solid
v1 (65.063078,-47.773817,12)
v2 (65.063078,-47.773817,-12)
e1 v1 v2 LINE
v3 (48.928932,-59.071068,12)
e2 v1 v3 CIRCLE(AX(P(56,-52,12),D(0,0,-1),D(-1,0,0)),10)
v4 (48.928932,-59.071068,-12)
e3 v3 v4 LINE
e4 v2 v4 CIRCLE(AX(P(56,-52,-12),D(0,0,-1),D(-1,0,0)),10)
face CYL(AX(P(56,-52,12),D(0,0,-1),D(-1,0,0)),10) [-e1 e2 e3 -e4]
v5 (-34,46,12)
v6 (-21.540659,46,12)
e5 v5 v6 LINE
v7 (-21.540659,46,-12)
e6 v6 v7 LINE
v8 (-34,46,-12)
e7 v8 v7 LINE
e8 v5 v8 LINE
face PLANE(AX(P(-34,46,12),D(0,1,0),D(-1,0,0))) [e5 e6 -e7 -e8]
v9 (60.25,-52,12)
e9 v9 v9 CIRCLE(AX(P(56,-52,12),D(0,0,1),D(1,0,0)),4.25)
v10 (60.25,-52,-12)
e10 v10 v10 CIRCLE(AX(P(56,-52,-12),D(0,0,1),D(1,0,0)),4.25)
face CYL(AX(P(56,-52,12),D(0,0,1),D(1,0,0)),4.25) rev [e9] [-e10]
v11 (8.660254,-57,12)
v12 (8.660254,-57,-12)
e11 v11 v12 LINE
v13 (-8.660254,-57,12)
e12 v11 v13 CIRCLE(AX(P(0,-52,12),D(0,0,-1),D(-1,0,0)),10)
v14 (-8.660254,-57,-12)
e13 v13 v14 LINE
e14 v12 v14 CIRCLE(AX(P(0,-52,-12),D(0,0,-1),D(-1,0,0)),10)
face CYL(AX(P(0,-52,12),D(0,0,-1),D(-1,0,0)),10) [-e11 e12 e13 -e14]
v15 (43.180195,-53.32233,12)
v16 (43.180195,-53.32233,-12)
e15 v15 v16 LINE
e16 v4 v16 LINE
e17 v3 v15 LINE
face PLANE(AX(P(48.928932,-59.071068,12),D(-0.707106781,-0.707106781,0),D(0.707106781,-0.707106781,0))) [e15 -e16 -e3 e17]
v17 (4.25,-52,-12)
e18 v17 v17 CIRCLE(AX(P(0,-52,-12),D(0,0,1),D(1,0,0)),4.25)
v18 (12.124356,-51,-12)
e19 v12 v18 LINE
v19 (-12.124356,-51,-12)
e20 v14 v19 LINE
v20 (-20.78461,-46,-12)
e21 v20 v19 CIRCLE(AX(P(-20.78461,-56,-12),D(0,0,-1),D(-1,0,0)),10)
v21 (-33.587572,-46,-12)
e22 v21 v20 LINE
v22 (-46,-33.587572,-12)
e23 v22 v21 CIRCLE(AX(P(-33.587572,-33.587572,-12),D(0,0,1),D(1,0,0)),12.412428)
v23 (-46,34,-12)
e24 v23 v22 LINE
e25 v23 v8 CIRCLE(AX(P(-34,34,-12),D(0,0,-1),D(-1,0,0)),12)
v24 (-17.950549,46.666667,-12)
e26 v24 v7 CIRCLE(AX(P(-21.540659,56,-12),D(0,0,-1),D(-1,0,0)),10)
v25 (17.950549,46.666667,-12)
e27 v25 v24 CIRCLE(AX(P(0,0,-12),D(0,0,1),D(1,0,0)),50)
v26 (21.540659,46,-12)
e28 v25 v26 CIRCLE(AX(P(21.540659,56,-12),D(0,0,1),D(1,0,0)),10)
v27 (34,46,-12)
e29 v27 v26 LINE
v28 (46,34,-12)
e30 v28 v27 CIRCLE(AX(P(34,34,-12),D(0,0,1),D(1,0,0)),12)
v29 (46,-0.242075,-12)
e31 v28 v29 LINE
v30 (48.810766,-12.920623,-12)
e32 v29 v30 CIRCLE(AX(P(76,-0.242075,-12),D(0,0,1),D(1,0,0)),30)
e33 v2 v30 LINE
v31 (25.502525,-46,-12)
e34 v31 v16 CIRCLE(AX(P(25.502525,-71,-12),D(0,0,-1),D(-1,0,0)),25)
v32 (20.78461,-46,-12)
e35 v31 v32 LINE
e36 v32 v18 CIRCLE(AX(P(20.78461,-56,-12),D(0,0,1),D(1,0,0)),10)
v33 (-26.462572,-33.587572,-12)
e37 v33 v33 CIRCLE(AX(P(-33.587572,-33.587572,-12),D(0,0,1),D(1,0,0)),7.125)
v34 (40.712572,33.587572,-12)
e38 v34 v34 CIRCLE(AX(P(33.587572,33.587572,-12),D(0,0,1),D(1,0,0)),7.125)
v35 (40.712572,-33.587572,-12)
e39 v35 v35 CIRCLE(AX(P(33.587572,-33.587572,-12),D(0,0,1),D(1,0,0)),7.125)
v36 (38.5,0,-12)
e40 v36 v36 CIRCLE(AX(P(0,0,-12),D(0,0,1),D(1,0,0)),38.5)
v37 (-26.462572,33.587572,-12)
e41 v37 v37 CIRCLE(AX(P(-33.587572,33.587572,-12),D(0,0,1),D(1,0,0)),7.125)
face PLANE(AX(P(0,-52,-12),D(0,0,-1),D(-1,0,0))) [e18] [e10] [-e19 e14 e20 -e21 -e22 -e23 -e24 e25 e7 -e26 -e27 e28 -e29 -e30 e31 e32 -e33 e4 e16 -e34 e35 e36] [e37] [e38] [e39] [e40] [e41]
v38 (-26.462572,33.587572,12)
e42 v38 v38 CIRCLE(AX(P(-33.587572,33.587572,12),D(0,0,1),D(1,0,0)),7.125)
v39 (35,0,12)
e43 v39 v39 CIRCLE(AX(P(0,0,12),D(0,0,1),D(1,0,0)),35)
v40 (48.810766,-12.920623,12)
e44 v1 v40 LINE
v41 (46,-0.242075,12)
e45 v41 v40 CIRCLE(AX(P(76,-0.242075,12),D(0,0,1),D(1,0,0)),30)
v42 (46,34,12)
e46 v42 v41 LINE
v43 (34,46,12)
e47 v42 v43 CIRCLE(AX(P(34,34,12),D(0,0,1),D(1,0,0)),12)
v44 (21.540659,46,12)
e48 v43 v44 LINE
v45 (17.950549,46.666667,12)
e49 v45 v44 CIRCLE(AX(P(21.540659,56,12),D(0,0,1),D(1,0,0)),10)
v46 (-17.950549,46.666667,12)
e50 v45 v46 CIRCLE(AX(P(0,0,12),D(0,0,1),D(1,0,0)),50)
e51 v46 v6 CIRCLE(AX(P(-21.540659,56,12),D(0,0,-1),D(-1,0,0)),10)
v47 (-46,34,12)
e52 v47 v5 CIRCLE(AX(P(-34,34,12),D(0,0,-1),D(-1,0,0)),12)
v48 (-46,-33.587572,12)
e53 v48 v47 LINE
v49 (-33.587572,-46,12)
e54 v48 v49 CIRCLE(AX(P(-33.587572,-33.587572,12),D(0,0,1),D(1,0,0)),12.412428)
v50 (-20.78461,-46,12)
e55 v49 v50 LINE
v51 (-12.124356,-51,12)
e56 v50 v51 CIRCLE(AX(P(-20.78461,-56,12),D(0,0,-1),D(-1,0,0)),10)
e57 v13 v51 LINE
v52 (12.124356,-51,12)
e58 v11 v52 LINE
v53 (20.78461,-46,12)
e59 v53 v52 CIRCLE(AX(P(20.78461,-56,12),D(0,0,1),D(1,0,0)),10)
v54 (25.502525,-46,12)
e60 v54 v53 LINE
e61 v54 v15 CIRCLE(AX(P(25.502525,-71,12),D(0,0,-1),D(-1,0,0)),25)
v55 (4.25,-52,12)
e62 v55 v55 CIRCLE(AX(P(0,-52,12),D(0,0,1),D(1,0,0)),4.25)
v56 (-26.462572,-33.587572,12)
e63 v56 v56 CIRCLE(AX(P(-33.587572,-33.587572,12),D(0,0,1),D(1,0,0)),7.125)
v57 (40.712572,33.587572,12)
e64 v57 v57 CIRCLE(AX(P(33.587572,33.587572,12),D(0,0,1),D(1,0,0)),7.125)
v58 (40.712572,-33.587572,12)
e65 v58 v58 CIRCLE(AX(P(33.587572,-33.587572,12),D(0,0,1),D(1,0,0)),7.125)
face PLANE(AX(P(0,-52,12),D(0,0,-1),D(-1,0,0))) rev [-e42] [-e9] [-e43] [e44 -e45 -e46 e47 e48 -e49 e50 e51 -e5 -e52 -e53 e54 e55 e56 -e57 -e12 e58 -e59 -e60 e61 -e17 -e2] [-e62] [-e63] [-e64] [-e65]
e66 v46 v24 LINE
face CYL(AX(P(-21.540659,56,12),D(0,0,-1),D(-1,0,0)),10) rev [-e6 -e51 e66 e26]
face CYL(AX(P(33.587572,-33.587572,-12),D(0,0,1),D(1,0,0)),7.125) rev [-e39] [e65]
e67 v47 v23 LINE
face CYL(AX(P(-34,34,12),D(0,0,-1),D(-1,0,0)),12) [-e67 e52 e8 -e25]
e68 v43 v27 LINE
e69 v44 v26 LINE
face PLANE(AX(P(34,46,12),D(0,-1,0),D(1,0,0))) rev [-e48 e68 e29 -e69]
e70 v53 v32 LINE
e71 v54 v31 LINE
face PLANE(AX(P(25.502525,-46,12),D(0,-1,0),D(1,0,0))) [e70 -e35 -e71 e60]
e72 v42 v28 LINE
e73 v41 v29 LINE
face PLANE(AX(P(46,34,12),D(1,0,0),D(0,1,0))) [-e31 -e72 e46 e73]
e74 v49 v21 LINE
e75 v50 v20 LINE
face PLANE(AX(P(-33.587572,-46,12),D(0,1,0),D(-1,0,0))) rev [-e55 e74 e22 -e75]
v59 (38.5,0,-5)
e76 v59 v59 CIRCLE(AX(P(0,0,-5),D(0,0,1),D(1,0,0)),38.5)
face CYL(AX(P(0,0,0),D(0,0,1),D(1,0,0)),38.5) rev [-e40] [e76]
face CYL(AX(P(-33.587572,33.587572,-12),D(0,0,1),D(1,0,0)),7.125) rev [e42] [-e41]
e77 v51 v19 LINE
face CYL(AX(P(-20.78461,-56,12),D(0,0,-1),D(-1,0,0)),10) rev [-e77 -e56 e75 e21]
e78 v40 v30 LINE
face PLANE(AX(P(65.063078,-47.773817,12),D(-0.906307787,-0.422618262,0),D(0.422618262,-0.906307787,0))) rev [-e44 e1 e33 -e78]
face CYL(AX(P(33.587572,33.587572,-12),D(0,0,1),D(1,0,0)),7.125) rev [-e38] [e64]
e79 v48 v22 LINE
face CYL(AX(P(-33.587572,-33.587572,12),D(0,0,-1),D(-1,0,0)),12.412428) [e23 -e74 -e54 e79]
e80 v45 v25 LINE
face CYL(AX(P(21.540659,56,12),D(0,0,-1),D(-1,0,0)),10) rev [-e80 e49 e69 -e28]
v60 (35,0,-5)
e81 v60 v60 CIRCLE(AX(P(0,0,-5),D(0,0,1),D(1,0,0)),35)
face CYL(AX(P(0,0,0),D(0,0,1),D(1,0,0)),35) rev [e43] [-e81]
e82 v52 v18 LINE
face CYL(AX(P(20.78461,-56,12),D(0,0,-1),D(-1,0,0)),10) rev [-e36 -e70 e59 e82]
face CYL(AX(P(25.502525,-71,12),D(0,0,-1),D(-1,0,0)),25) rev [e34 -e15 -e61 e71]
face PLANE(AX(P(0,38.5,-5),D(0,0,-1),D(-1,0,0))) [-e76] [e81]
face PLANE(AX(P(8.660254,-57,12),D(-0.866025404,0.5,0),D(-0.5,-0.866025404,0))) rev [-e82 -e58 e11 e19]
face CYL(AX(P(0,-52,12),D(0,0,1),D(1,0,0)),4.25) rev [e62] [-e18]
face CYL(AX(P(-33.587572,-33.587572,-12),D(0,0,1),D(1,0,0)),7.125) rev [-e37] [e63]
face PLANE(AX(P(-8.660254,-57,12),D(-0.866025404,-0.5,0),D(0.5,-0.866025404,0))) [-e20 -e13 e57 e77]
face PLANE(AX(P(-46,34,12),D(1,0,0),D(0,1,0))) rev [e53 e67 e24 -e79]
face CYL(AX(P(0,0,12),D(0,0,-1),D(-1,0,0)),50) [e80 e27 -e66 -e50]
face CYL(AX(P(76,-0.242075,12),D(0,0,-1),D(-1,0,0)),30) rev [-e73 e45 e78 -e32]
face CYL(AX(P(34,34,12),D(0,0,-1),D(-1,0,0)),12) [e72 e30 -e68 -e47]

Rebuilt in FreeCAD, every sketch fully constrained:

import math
import FreeCAD as App
import Part
import Sketcher

V = App.Vector
Q = App.Units.Quantity


def add_polygon(sketch, points):
    """Adds a closed chain of lines whose ends are joined by coincident constraints."""
    first, n = sketch.GeometryCount, len(points)
    for a, b in zip(points, points[1:] + points[:1]):
        sketch.addGeometry(Part.LineSegment(App.Vector(*a, 0), App.Vector(*b, 0)), False)
    for i in range(n):
        sketch.addConstraint(Sketcher.Constraint("Coincident", first + i, 2, first + (i + 1) % n, 1))

doc = App.newDocument("Part")
params = doc.addObject("Spreadsheet::Sheet", "Params")
for row, (alias, value) in enumerate([
    ("sketch1_diameter", "62 mm"),
    ("sketch1_radius", "10 mm"),
    ("sketch1_radius2", "50 mm"),
    ("sketch1_radius3", "12 mm"),
    ("sketch1_radius4", "25 mm"),
    ("pad1_length", "24 mm"),
    ("sketch2_width", "35 mm"),
    ("sketch2_height", "7 mm"),
    ("sketch2_height2", "17 mm"),
    ("sketch2_width2", "3.5 mm"),
    ("groove_angle", "360 deg"),
    ("sketch3_diameter", "8.5 mm"),
    ("hole_diameter", "8.5 mm"),
    ("hole_depth", "24 mm"),
    ("sketch4_diameter", "14.25 mm"),
], start=1):
    params.set(f"A{row}", alias)
    params.set(f"B{row}", "=" + value)
    params.setAlias(f"B{row}", alias)

body = doc.addObject("PartDesign::Body", "Body")

sketch1 = doc.addObject("Sketcher::SketchObject", "Sketch")
body.addObject(sketch1)
sketch1.AttachmentSupport = (doc.XY_Plane, [""])
sketch1.MapMode = "FlatFace"
sketch1.addGeometry([
    Part.LineSegment(V(34, 46, 0), V(21.5, 46, 0)),
    Part.ArcOfCircle(Part.Circle(V(21.5, 56, 0), V(0, 0, 1), 10), math.radians(-111), math.radians(-90)),
    Part.ArcOfCircle(Part.Circle(V(0, 0, 0), V(0, 0, 1), 50), math.radians(69), math.radians(111)),
    Part.ArcOfCircle(Part.Circle(V(-21.5, 56, 0), V(0, 0, 1), 10), math.radians(-90), math.radians(-69)),
    Part.LineSegment(V(-21.5, 46, 0), V(-34, 46, 0)),
    Part.ArcOfCircle(Part.Circle(V(-34, 34, 0), V(0, 0, 1), 12), math.radians(90), math.radians(180)),
    Part.LineSegment(V(-46, 34, 0), V(-46, -33.6, 0)),
    Part.ArcOfCircle(Part.Circle(V(-33.6, -33.6, 0), V(0, 0, 1), 12.4), math.radians(180), math.radians(270)),
    Part.LineSegment(V(-33.6, -46, 0), V(-20.8, -46, 0)),
    Part.ArcOfCircle(Part.Circle(V(-20.8, -56, 0), V(0, 0, 1), 10), math.radians(30), math.radians(90)),
    Part.LineSegment(V(-12.1, -51, 0), V(-8.7, -57, 0)),
    Part.ArcOfCircle(Part.Circle(V(0, -52, 0), V(0, 0, 1), 10), math.radians(-150), math.radians(-30)),
    Part.LineSegment(V(8.7, -57, 0), V(12.1, -51, 0)),
    Part.ArcOfCircle(Part.Circle(V(20.8, -56, 0), V(0, 0, 1), 10), math.radians(90), math.radians(150)),
    Part.LineSegment(V(20.8, -46, 0), V(25.5, -46, 0)),
    Part.ArcOfCircle(Part.Circle(V(25.5, -71, 0), V(0, 0, 1), 25), math.radians(45), math.radians(90)),
    Part.LineSegment(V(43.2, -53.3, 0), V(48.9, -59.1, 0)),
    Part.ArcOfCircle(Part.Circle(V(56, -52, 0), V(0, 0, 1), 10), math.radians(-135), math.radians(25)),
    Part.LineSegment(V(65.1, -47.8, 0), V(48.8, -12.9, 0)),
    Part.ArcOfCircle(Part.Circle(V(76, -0.2, 0), V(0, 0, 1), 30), math.radians(180), math.radians(205)),
    Part.LineSegment(V(46, -0.2, 0), V(46, 34, 0)),
    Part.ArcOfCircle(Part.Circle(V(34, 34, 0), V(0, 0, 1), 12), math.radians(0), math.radians(90)),
    Part.Circle(V(0, 0, 0), V(0, 0, 1), 31),
], False)
sketch1.addConstraint([
    Sketcher.Constraint("Tangent", 0, 2, 1, 2),
    Sketcher.Constraint("Tangent", 1, 1, 2, 1),
    Sketcher.Constraint("Tangent", 2, 2, 3, 2),
    Sketcher.Constraint("Tangent", 3, 1, 4, 1),
    Sketcher.Constraint("Tangent", 4, 2, 5, 1),
    Sketcher.Constraint("Tangent", 5, 2, 6, 1),
    Sketcher.Constraint("Tangent", 6, 2, 7, 1),
    Sketcher.Constraint("Tangent", 7, 2, 8, 1),
    Sketcher.Constraint("Tangent", 8, 2, 9, 2),
    Sketcher.Constraint("Tangent", 9, 1, 10, 1),
    Sketcher.Constraint("Tangent", 10, 2, 11, 1),
    Sketcher.Constraint("Tangent", 11, 2, 12, 1),
    Sketcher.Constraint("Tangent", 12, 2, 13, 2),
    Sketcher.Constraint("Tangent", 13, 1, 14, 1),
    Sketcher.Constraint("Tangent", 14, 2, 15, 2),
    Sketcher.Constraint("Tangent", 15, 1, 16, 1),
    Sketcher.Constraint("Tangent", 16, 2, 17, 1),
    Sketcher.Constraint("Tangent", 17, 2, 18, 1),
    Sketcher.Constraint("Tangent", 18, 2, 19, 2),
    Sketcher.Constraint("Tangent", 19, 1, 20, 1),
    Sketcher.Constraint("Tangent", 20, 2, 21, 1),
    Sketcher.Constraint("Tangent", 21, 2, 0, 1),
    Sketcher.Constraint("Horizontal", 0),
    Sketcher.Constraint("Horizontal", 4),
    Sketcher.Constraint("Vertical", 6),
    Sketcher.Constraint("Horizontal", 8),
    Sketcher.Constraint("Horizontal", 14),
    Sketcher.Constraint("Vertical", 20),
    Sketcher.Constraint("Coincident", 2, 3, -1, 1),
    Sketcher.Constraint("Coincident", 22, 3, -1, 1),
    Sketcher.Constraint("Equal", 1, 3),
    Sketcher.Constraint("Equal", 3, 9),
    Sketcher.Constraint("Equal", 9, 11),
    Sketcher.Constraint("Equal", 11, 13),
    Sketcher.Constraint("Equal", 13, 17),
    Sketcher.Constraint("Equal", 5, 21),
    Sketcher.Constraint("Symmetric", 9, 3, 13, 3, -2),
    Sketcher.Constraint("Symmetric", 5, 3, 21, 3, -2),
    Sketcher.Constraint("PointOnObject", 11, 3, -2),
    Sketcher.Constraint("Horizontal", 11, 3, 17, 3),
    Sketcher.Constraint("Diameter", 22, Q("62 mm")),
    Sketcher.Constraint("Radius", 1, Q("10 mm")),
    Sketcher.Constraint("Radius", 2, Q("50 mm")),
    Sketcher.Constraint("Radius", 5, Q("12 mm")),
    Sketcher.Constraint("Radius", 15, Q("25 mm")),
    Sketcher.Constraint("Radius", 19, Q("30 mm")),
    Sketcher.Constraint("Angle", 10, Q("-60 deg")),
    Sketcher.Constraint("Angle", 16, Q("-45 deg")),
    Sketcher.Constraint("Angle", 18, Q("115 deg")),
    Sketcher.Constraint("DistanceY", -1, 1, 1, 3, Q("56 mm")),
    Sketcher.Constraint("DistanceX", 5, 3, -1, 1, Q("34 mm")),
    Sketcher.Constraint("DistanceY", 9, 3, -1, 1, Q("56 mm")),
    Sketcher.Constraint("DistanceY", 11, 3, -1, 1, Q("52 mm")),
    Sketcher.Constraint("DistanceX", -1, 1, 17, 3, Q("56 mm")),
    Sketcher.Constraint("Radius", 7, Q("12.412428 mm")),
])
sketch1.setExpression("Constraints[40]", "Params.sketch1_diameter")
sketch1.setExpression("Constraints[41]", "Params.sketch1_radius")
sketch1.setExpression("Constraints[42]", "Params.sketch1_radius2")
sketch1.setExpression("Constraints[43]", "Params.sketch1_radius3")
sketch1.setExpression("Constraints[44]", "Params.sketch1_radius4")
pad1 = doc.addObject("PartDesign::Pad", "Pad")
body.addObject(pad1)
pad1.Profile = sketch1
pad1.setExpression("Length", "Params.pad1_length")
pad1.Midplane = True

sketch2 = doc.addObject("Sketcher::SketchObject", "Sketch001")
body.addObject(sketch2)
sketch2.AttachmentSupport = (doc.YZ_Plane, [""])
sketch2.MapMode = "FlatFace"
add_polygon(sketch2, [(38.5, -12), (38.5, -5), (35, -5), (35, 12), (0, 12), (0, -12)])
sketch2.addConstraint([
    Sketcher.Constraint("Vertical", 0),
    Sketcher.Constraint("Horizontal", 1),
    Sketcher.Constraint("Vertical", 2),
    Sketcher.Constraint("Horizontal", 3),
    Sketcher.Constraint("Vertical", 4),
    Sketcher.Constraint("Horizontal", 5),
    Sketcher.Constraint("Symmetric", 3, 2, 4, 2, -1, 1),
    Sketcher.Constraint("DistanceX", 3, 2, 3, 1, Q("35 mm")),
    Sketcher.Constraint("DistanceY", 0, 1, 0, 2, Q("7 mm")),
    Sketcher.Constraint("DistanceY", 2, 1, 2, 2, Q("17 mm")),
    Sketcher.Constraint("DistanceX", 1, 2, 1, 1, Q("3.5 mm")),
])
sketch2.setExpression("Constraints[13]", "Params.sketch2_width")
sketch2.setExpression("Constraints[14]", "Params.sketch2_height")
sketch2.setExpression("Constraints[15]", "Params.sketch2_height2")
sketch2.setExpression("Constraints[16]", "Params.sketch2_width2")
groove = doc.addObject("PartDesign::Groove", "Groove")
body.addObject(groove)
groove.Profile = sketch2
groove.ReferenceAxis = (sketch2, ["V_Axis"])
groove.setExpression("Angle", "Params.groove_angle")

sketch3 = doc.addObject("Sketcher::SketchObject", "Sketch002")
body.addObject(sketch3)
sketch3.AttachmentSupport = (doc.XY_Plane, [""])
sketch3.MapMode = "FlatFace"
sketch3.AttachmentOffset = App.Placement(V(0, 0, 12), App.Rotation())
sketch3.addGeometry([
    Part.Circle(V(56, -52, 0), V(0, 0, 1), 4.2),
    Part.Circle(V(0, -52, 0), V(0, 0, 1), 4.2),
], False)
sketch3.addConstraint([
    Sketcher.Constraint("Equal", 0, 1),
    Sketcher.Constraint("PointOnObject", 1, 3, -2),
    Sketcher.Constraint("Horizontal", 0, 3, 1, 3),
    Sketcher.Constraint("Diameter", 0, Q("8.5 mm")),
    Sketcher.Constraint("DistanceX", -1, 1, 0, 3, Q("56 mm")),
    Sketcher.Constraint("DistanceY", 0, 3, -1, 1, Q("52 mm")),
])
sketch3.setExpression("Constraints[3]", "Params.sketch3_diameter")
doc.recompute()
hole = doc.addObject("PartDesign::Hole", "Hole")
body.addObject(hole)
hole.Profile = sketch3
hole.ThreadType = "None"
hole.setExpression("Diameter", "Params.hole_diameter")
hole.DepthType = "Dimension"
hole.setExpression("Depth", "Params.hole_depth")
hole.DrillPoint = "Angled"
hole.DrillPointAngle = 118

sketch4 = doc.addObject("Sketcher::SketchObject", "Sketch003")
body.addObject(sketch4)
sketch4.AttachmentSupport = (doc.XY_Plane, [""])
sketch4.MapMode = "FlatFace"
sketch4.AttachmentOffset = App.Placement(V(0, 0, 12), App.Rotation())
sketch4.addGeometry([
    Part.Circle(V(34, 34, 0), V(0, 0, 1), 7),
    Part.Circle(V(34, -34, 0), V(0, 0, 1), 7),
    Part.Circle(V(-34, -34, 0), V(0, 0, 1), 7),
    Part.Circle(V(-34, 34, 0), V(0, 0, 1), 7),
], False)
sketch4.addConstraint([
    Sketcher.Constraint("Equal", 0, 1),
    Sketcher.Constraint("Equal", 1, 2),
    Sketcher.Constraint("Equal", 2, 3),
    Sketcher.Constraint("Symmetric", 0, 3, 2, 3, -1, 1),
    Sketcher.Constraint("Symmetric", 1, 3, 3, 3, -1, 1),
    Sketcher.Constraint("Symmetric", 1, 3, 2, 3, -2),
    Sketcher.Constraint("Diameter", 0, Q("14.25 mm")),
    Sketcher.Constraint("DistanceX", -1, 1, 0, 3, Q("33.587572 mm")),
    Sketcher.Constraint("DistanceY", -1, 1, 0, 3, Q("33.587572 mm")),
])
sketch4.setExpression("Constraints[6]", "Params.sketch4_diameter")
pocket1 = doc.addObject("PartDesign::Pocket", "Pocket")
body.addObject(pocket1)
pocket1.Profile = sketch4
pocket1.Type = "ThroughAll"

doc.recompute()
